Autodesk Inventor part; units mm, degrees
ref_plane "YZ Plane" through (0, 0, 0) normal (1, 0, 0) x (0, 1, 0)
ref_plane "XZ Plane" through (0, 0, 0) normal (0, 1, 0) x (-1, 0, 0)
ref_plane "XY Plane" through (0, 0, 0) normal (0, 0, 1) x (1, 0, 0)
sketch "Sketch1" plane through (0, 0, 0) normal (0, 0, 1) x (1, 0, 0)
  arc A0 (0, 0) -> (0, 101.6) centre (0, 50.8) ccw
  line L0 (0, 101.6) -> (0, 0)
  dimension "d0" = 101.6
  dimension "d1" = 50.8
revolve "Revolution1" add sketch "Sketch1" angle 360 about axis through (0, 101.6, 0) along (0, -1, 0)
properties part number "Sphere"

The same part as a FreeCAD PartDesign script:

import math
import FreeCAD as App
import Part
import Sketcher
Q = App.Units.Quantity

doc = App.newDocument("Part")
params = doc.addObject("Spreadsheet::Sheet", "Params")
for row, (alias, value) in enumerate([
    ("sketch1_radius", "2 in"),
    ("revolution_angle", "360 deg"),
], start=1):
    params.set(f"A{row}", alias)
    params.set(f"B{row}", "=" + value)
    params.setAlias(f"B{row}", alias)

body = doc.addObject("PartDesign::Body", "Body")

sketch1 = doc.addObject("Sketcher::SketchObject", "Sketch")
body.addObject(sketch1)
sketch1.AttachmentSupport = (doc.XY_Plane, [""])
sketch1.MapMode = "FlatFace"
sketch1.addGeometry(Part.LineSegment(App.Vector(0, 101.6, 0), App.Vector(0, 0, 0)), False)
sketch1.addGeometry(Part.ArcOfCircle(Part.Circle(App.Vector(0, 50.8, 0), App.Vector(0, 0, 1), 50.8), math.radians(-90), math.radians(90)), False)
sketch1.addConstraint(Sketcher.Constraint("Coincident", 0, 1, 1, 2))
sketch1.addConstraint(Sketcher.Constraint("Coincident", 1, 1, 0, 2))
sketch1.addConstraint(Sketcher.Constraint("Vertical", 0))
sketch1.addConstraint(Sketcher.Constraint("Coincident", 1, 1, -1, 1))
sketch1.addConstraint(Sketcher.Constraint("PointOnObject", 1, 3, -2))
sketch1.addConstraint(Sketcher.Constraint("Radius", 1, Q("2 in")))
sketch1.setExpression("Constraints[5]", "Params.sketch1_radius")
revolution = doc.addObject("PartDesign::Revolution", "Revolution")
body.addObject(revolution)
revolution.Profile = sketch1
revolution.ReferenceAxis = (sketch1, ["V_Axis"])
revolution.setExpression("Angle", "Params.revolution_angle")

doc.recompute()
